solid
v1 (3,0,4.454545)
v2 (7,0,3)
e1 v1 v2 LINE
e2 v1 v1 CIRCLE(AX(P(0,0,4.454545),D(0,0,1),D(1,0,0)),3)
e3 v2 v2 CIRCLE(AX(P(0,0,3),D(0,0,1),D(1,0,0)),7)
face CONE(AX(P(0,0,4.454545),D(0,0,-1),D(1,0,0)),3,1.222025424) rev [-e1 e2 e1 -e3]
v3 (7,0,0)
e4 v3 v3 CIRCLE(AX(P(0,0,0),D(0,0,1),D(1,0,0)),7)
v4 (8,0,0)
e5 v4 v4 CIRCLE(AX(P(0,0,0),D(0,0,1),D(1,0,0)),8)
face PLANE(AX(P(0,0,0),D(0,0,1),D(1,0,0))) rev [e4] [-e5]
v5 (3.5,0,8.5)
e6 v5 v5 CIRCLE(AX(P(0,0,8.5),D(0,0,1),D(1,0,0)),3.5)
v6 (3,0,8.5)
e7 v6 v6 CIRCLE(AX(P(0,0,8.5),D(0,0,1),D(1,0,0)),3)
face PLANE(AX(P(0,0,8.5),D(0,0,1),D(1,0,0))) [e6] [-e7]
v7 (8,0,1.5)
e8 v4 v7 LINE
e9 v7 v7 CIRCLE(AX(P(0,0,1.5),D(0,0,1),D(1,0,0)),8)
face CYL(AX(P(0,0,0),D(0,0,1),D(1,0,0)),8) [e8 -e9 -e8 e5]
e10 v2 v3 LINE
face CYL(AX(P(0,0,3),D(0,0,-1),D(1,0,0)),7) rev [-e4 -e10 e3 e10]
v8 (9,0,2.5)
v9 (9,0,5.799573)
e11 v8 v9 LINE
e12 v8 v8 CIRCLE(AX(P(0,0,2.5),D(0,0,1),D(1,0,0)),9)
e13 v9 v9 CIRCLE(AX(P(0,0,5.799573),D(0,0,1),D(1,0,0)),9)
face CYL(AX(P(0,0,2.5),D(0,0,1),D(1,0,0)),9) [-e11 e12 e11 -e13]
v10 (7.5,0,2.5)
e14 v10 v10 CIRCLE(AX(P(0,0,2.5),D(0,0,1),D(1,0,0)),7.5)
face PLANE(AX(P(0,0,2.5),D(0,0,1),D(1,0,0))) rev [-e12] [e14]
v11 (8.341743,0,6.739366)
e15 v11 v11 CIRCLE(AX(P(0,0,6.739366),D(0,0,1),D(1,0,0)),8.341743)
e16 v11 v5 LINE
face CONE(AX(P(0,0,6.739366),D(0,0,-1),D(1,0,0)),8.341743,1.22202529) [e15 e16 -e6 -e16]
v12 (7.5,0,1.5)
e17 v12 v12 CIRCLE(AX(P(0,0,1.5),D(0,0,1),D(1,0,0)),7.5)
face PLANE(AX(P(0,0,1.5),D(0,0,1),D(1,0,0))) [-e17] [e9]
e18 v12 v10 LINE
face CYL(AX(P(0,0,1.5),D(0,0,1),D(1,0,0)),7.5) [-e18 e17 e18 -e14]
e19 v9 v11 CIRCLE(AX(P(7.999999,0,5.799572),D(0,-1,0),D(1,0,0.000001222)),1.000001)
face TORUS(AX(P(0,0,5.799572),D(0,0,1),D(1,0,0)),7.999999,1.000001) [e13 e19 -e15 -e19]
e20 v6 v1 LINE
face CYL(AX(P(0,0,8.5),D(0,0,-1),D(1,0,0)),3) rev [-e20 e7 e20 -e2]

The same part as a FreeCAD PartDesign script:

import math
import FreeCAD as App
import Part
import Sketcher
from FreeCAD import Vector

doc = App.newDocument("Part")
body = doc.addObject("PartDesign::Body", "Body")

sketch1 = body.newObject("Sketcher::SketchObject", "Sketch")
sketch1.AttachmentSupport = (doc.getObject("XZ_Plane"), [""])
sketch1.MapMode = "FlatFace"
sketch1.addGeometry(Part.LineSegment(Vector(3.5, 8.5, 0), Vector(3, 8.5, 0)), False)
sketch1.addGeometry(Part.LineSegment(Vector(3, 8.5, 0), Vector(3, 4.454545, 0)), False)
sketch1.addGeometry(Part.LineSegment(Vector(3, 4.454545, 0), Vector(7, 3, 0)), False)
sketch1.addGeometry(Part.LineSegment(Vector(7, 3, 0), Vector(7, 0, 0)), False)
sketch1.addGeometry(Part.LineSegment(Vector(7, 0, 0), Vector(8, 0, 0)), False)
sketch1.addGeometry(Part.LineSegment(Vector(8, 0, 0), Vector(8, 1.5, 0)), False)
sketch1.addGeometry(Part.LineSegment(Vector(8, 1.5, 0), Vector(7.5, 1.5, 0)), False)
sketch1.addGeometry(Part.LineSegment(Vector(7.5, 1.5, 0), Vector(7.5, 2.5, 0)), False)
sketch1.addGeometry(Part.LineSegment(Vector(7.5, 2.5, 0), Vector(9, 2.5, 0)), False)
sketch1.addGeometry(Part.LineSegment(Vector(9, 2.5, 0), Vector(9, 5.799573, 0)), False)
sketch1.addGeometry(Part.ArcOfCircle(Part.Circle(Vector(7.999999, 5.799572, 0), Vector(0, 0, 1), 1.000001), math.radians(0.00007), math.radians(70.016853)), False)
sketch1.addGeometry(Part.LineSegment(Vector(8.341743, 6.739366, 0), Vector(3.5, 8.5, 0)), False)
sketch1.addConstraint(Sketcher.Constraint("Coincident", 0, 2, 1, 1))
sketch1.addConstraint(Sketcher.Constraint("Coincident", 1, 2, 2, 1))
sketch1.addConstraint(Sketcher.Constraint("Coincident", 2, 2, 3, 1))
sketch1.addConstraint(Sketcher.Constraint("Coincident", 3, 2, 4, 1))
sketch1.addConstraint(Sketcher.Constraint("Coincident", 4, 2, 5, 1))
sketch1.addConstraint(Sketcher.Constraint("Coincident", 5, 2, 6, 1))
sketch1.addConstraint(Sketcher.Constraint("Coincident", 6, 2, 7, 1))
sketch1.addConstraint(Sketcher.Constraint("Coincident", 7, 2, 8, 1))
sketch1.addConstraint(Sketcher.Constraint("Coincident", 8, 2, 9, 1))
sketch1.addConstraint(Sketcher.Constraint("Tangent", 9, 2, 10, 1))
sketch1.addConstraint(Sketcher.Constraint("Tangent", 10, 2, 11, 1))
sketch1.addConstraint(Sketcher.Constraint("Coincident", 11, 2, 0, 1))
sketch1.addConstraint(Sketcher.Constraint("Horizontal", 0))
sketch1.addConstraint(Sketcher.Constraint("Vertical", 1))
sketch1.addConstraint(Sketcher.Constraint("Vertical", 3))
sketch1.addConstraint(Sketcher.Constraint("Horizontal", 4))
sketch1.addConstraint(Sketcher.Constraint("Vertical", 5))
sketch1.addConstraint(Sketcher.Constraint("Horizontal", 6))
sketch1.addConstraint(Sketcher.Constraint("Vertical", 7))
sketch1.addConstraint(Sketcher.Constraint("Horizontal", 8))
sketch1.addConstraint(Sketcher.Constraint("Vertical", 9))
sketch1.addConstraint(Sketcher.Constraint("PointOnObject", 3, 2, -1))
sketch1.addConstraint(Sketcher.Constraint("Parallel", 2, 11))
sketch1.addConstraint(Sketcher.Constraint("Vertical", 10, 3, 4, 2))
sketch1.addConstraint(Sketcher.Constraint("Equal", 0, 6))
sketch1.addConstraint(Sketcher.Constraint("Equal", 8, 5))
sketch1.addConstraint(Sketcher.Constraint("Equal", 4, 7))
sketch1.addConstraint(Sketcher.Constraint("Radius", 10, 1.000001))
sketch1.addConstraint(Sketcher.Constraint("DistanceX", 4, 1, 4, 2, 1.0))
sketch1.addConstraint(Sketcher.Constraint("DistanceY", 3, 2, 3, 1, 3.0))
sketch1.addConstraint(Sketcher.Constraint("DistanceX", 0, 2, 0, 1, 0.5))
sketch1.addConstraint(Sketcher.Constraint("DistanceX", -1, 1, 10, 3, 7.999999))
sketch1.addConstraint(Sketcher.Constraint("DistanceX", -1, 1, 0, 2, 3.0))
sketch1.addConstraint(Sketcher.Constraint("DistanceY", -1, 1, 0, 2, 8.5))
sketch1.addConstraint(Sketcher.Constraint("DistanceY", 1, 2, 1, 1, 4.045455))
revolution = body.newObject("PartDesign::Revolution", "Revolution")
revolution.Profile = sketch1
revolution.ReferenceAxis = (sketch1, ["V_Axis"])
revolution.Angle = 360

doc.recompute()
